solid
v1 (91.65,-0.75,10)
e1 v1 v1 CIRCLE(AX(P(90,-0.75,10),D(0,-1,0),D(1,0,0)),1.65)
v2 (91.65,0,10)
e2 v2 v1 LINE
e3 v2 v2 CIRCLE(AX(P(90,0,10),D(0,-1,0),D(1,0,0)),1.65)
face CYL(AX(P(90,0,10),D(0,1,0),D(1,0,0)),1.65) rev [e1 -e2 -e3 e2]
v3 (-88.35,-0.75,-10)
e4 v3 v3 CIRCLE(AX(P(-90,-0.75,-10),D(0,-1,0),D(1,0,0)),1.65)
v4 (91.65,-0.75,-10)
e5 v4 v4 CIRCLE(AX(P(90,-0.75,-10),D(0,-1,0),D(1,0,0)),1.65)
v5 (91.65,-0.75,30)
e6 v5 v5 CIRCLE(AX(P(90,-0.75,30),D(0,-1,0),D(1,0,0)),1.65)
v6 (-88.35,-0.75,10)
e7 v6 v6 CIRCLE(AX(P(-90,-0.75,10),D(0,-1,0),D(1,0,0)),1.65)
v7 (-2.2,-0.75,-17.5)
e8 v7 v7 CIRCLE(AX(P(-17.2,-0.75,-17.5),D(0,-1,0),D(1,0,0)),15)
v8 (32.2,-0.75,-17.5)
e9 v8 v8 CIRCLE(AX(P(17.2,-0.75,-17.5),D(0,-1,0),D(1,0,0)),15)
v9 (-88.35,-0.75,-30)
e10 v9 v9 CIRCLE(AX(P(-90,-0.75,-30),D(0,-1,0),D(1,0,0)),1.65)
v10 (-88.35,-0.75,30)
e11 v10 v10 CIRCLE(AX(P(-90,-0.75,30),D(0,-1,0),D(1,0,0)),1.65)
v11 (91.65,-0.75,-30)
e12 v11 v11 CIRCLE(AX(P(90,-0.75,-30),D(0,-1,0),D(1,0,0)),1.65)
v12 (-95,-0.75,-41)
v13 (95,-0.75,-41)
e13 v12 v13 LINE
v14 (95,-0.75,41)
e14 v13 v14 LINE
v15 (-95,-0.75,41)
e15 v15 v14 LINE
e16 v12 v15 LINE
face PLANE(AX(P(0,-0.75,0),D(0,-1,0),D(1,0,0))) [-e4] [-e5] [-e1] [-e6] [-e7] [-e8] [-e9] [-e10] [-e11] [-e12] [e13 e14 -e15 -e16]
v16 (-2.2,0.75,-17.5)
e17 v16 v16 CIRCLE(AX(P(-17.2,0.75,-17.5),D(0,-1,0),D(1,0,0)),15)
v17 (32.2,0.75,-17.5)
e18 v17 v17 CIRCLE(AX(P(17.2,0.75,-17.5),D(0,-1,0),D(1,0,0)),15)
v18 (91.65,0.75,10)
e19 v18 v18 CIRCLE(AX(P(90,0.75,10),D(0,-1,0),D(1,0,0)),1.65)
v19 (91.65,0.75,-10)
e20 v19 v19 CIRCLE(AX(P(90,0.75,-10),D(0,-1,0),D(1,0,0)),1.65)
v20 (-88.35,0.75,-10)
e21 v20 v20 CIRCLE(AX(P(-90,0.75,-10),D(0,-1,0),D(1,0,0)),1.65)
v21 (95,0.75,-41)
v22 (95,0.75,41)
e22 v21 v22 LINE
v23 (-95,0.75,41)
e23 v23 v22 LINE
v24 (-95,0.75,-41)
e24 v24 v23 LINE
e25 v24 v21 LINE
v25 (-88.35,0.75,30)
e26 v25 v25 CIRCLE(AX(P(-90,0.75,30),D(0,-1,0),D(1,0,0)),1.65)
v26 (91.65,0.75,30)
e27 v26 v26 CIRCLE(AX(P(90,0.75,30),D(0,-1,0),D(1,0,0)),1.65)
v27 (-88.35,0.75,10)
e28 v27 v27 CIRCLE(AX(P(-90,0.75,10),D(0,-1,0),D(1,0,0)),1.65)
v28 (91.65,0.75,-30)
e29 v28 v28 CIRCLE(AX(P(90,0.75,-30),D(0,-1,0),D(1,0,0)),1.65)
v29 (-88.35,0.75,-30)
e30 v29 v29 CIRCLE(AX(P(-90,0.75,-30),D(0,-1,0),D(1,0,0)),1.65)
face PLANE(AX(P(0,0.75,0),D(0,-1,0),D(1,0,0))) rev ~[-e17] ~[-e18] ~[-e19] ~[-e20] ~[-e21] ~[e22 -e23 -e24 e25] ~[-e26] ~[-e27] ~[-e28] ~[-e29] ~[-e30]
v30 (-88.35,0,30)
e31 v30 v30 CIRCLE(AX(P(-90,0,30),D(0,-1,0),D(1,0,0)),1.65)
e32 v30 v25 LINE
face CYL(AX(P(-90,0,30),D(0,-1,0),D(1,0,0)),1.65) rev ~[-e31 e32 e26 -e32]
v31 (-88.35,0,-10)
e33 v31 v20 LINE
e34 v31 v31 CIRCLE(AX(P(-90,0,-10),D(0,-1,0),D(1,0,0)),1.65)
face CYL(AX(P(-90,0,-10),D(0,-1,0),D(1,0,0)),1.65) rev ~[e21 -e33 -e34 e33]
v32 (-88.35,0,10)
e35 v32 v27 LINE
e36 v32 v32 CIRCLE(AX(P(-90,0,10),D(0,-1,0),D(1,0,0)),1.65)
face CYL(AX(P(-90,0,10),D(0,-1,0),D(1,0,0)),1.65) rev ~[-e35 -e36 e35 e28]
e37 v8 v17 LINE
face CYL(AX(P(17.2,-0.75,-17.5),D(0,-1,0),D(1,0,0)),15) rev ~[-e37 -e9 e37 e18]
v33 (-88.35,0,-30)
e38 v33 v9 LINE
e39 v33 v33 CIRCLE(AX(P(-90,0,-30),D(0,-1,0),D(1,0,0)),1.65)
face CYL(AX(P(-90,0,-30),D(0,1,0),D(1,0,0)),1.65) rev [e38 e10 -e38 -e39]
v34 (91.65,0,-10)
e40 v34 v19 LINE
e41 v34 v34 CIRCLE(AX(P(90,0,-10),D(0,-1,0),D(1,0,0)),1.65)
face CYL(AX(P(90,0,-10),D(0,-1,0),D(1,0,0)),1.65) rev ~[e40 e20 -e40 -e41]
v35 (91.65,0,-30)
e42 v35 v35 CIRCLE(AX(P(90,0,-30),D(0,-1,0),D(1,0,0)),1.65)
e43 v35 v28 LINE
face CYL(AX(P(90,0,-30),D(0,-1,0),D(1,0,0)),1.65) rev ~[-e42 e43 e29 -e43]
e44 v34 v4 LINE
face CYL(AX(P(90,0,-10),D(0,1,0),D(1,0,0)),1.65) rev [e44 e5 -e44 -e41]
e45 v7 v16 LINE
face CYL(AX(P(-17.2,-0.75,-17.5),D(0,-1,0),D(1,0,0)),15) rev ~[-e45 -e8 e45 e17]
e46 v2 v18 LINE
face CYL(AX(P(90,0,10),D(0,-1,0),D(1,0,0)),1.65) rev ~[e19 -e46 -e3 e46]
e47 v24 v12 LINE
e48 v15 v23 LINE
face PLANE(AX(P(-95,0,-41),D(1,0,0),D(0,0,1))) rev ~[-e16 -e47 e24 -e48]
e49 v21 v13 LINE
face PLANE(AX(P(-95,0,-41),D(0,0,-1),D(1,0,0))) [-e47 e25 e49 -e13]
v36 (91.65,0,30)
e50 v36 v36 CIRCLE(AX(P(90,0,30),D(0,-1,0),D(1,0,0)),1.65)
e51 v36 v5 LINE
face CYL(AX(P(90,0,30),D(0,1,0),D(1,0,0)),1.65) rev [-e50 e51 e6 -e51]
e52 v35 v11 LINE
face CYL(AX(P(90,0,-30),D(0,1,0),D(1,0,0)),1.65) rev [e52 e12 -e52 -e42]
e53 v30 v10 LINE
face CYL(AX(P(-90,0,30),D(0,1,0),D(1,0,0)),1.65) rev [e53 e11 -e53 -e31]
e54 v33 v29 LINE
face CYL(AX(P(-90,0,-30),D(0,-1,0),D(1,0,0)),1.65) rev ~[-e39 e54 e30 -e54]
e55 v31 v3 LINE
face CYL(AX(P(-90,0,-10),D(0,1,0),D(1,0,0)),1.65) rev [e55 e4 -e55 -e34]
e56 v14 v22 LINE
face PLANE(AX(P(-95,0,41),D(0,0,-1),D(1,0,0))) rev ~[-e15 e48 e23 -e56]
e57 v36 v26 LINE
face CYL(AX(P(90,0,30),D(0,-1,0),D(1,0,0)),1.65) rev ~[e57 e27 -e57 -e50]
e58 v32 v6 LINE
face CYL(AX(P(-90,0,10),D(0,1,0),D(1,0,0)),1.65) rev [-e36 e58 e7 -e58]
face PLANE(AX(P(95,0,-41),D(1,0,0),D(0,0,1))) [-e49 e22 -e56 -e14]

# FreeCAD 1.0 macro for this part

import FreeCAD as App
import Part
import Sketcher

doc = App.newDocument("Part")
body = doc.addObject("PartDesign::Body", "Body")

sketch1 = body.newObject("Sketcher::SketchObject", "Sketch")
sketch1.AttachmentSupport = (doc.getObject("XZ_Plane"), [""])
sketch1.MapMode = "FlatFace"
sketch1.addGeometry(Part.LineSegment(App.Vector(-95, 41, 0), App.Vector(-95, -41, 0)), False)
sketch1.addGeometry(Part.LineSegment(App.Vector(-95, -41, 0), App.Vector(95, -41, 0)), False)
sketch1.addGeometry(Part.LineSegment(App.Vector(95, -41, 0), App.Vector(95, 41, 0)), False)
sketch1.addGeometry(Part.LineSegment(App.Vector(95, 41, 0), App.Vector(-95, 41, 0)), False)
sketch1.addGeometry(Part.Circle(App.Vector(-90, -30, 0), App.Vector(0, 0, 1), 1.6), False)
sketch1.addGeometry(Part.Circle(App.Vector(-90, -10, 0), App.Vector(0, 0, 1), 1.6), False)
sketch1.addGeometry(Part.Circle(App.Vector(90, -30, 0), App.Vector(0, 0, 1), 1.6), False)
sketch1.addGeometry(Part.Circle(App.Vector(90, -10, 0), App.Vector(0, 0, 1), 1.6), False)
sketch1.addGeometry(Part.Circle(App.Vector(-90, 10, 0), App.Vector(0, 0, 1), 1.6), False)
sketch1.addGeometry(Part.Circle(App.Vector(-90, 30, 0), App.Vector(0, 0, 1), 1.6), False)
sketch1.addGeometry(Part.Circle(App.Vector(90, 10, 0), App.Vector(0, 0, 1), 1.6), False)
sketch1.addGeometry(Part.Circle(App.Vector(90, 30, 0), App.Vector(0, 0, 1), 1.6), False)
sketch1.addConstraint(Sketcher.Constraint("Coincident", 0, 2, 1, 1))
sketch1.addConstraint(Sketcher.Constraint("Coincident", 1, 2, 2, 1))
sketch1.addConstraint(Sketcher.Constraint("Coincident", 2, 2, 3, 1))
sketch1.addConstraint(Sketcher.Constraint("Coincident", 3, 2, 0, 1))
sketch1.addConstraint(Sketcher.Constraint("Vertical", 0))
sketch1.addConstraint(Sketcher.Constraint("Horizontal", 1))
sketch1.addConstraint(Sketcher.Constraint("Vertical", 2))
sketch1.addConstraint(Sketcher.Constraint("Horizontal", 3))
sketch1.addConstraint(Sketcher.Constraint("Equal", 4, 5))
sketch1.addConstraint(Sketcher.Constraint("Equal", 5, 6))
sketch1.addConstraint(Sketcher.Constraint("Equal", 6, 7))
sketch1.addConstraint(Sketcher.Constraint("Equal", 7, 8))
sketch1.addConstraint(Sketcher.Constraint("Equal", 8, 9))
sketch1.addConstraint(Sketcher.Constraint("Equal", 9, 10))
sketch1.addConstraint(Sketcher.Constraint("Equal", 10, 11))
sketch1.addConstraint(Sketcher.Constraint("Symmetric", 7, 3, 8, 3, -1, 1))
sketch1.addConstraint(Sketcher.Constraint("Symmetric", 6, 3, 9, 3, -1, 1))
sketch1.addConstraint(Sketcher.Constraint("Symmetric", 5, 3, 10, 3, -1, 1))
sketch1.addConstraint(Sketcher.Constraint("Symmetric", 4, 3, 11, 3, -1, 1))
sketch1.addConstraint(Sketcher.Constraint("Symmetric", 0, 2, 2, 2, -1, 1))
sketch1.addConstraint(Sketcher.Constraint("Symmetric", 4, 3, 6, 3, -2))
sketch1.addConstraint(Sketcher.Constraint("Symmetric", 5, 3, 7, 3, -2))
sketch1.addConstraint(Sketcher.Constraint("Vertical", 4, 3, 5, 3))
sketch1.addConstraint(Sketcher.Constraint("Diameter", 4, 3.3))
sketch1.addConstraint(Sketcher.Constraint("DistanceX", 1, 1, 1, 2, 190.0))
sketch1.addConstraint(Sketcher.Constraint("DistanceY", 0, 2, 0, 1, 82.0))
sketch1.addConstraint(Sketcher.Constraint("DistanceX", 4, 3, -1, 1, 90.0))
sketch1.addConstraint(Sketcher.Constraint("DistanceY", 4, 3, -1, 1, 30.0))
sketch1.addConstraint(Sketcher.Constraint("DistanceY", 5, 3, -1, 1, 10.0))
pad1 = body.newObject("PartDesign::Pad", "Pad")
pad1.Profile = sketch1
pad1.Type = "TwoLengths"
pad1.Length = 0.75
pad1.Length2 = 0.75

sketch2 = body.newObject("Sketcher::SketchObject", "Sketch001")
sketch2.AttachmentSupport = (doc.getObject("XZ_Plane"), [""])
sketch2.MapMode = "FlatFace"
sketch2.AttachmentOffset = App.Placement(App.Vector(0, 0, 0.75), App.Rotation())
sketch2.addGeometry(Part.Circle(App.Vector(-17, -18, 0), App.Vector(0, 0, 1), 15), False)
sketch2.addGeometry(Part.Circle(App.Vector(17, -18, 0), App.Vector(0, 0, 1), 15), False)
sketch2.addConstraint(Sketcher.Constraint("Equal", 0, 1))
sketch2.addConstraint(Sketcher.Constraint("Symmetric", 0, 3, 1, 3, -2))
sketch2.addConstraint(Sketcher.Constraint("Diameter", 0, 30.0))
sketch2.addConstraint(Sketcher.Constraint("DistanceX", 0, 3, -1, 1, 17.2))
sketch2.addConstraint(Sketcher.Constraint("DistanceY", 0, 3, -1, 1, 17.5))
pocket1 = body.newObject("PartDesign::Pocket", "Pocket")
pocket1.Profile = sketch2
pocket1.Type = "ThroughAll"

doc.recompute()
